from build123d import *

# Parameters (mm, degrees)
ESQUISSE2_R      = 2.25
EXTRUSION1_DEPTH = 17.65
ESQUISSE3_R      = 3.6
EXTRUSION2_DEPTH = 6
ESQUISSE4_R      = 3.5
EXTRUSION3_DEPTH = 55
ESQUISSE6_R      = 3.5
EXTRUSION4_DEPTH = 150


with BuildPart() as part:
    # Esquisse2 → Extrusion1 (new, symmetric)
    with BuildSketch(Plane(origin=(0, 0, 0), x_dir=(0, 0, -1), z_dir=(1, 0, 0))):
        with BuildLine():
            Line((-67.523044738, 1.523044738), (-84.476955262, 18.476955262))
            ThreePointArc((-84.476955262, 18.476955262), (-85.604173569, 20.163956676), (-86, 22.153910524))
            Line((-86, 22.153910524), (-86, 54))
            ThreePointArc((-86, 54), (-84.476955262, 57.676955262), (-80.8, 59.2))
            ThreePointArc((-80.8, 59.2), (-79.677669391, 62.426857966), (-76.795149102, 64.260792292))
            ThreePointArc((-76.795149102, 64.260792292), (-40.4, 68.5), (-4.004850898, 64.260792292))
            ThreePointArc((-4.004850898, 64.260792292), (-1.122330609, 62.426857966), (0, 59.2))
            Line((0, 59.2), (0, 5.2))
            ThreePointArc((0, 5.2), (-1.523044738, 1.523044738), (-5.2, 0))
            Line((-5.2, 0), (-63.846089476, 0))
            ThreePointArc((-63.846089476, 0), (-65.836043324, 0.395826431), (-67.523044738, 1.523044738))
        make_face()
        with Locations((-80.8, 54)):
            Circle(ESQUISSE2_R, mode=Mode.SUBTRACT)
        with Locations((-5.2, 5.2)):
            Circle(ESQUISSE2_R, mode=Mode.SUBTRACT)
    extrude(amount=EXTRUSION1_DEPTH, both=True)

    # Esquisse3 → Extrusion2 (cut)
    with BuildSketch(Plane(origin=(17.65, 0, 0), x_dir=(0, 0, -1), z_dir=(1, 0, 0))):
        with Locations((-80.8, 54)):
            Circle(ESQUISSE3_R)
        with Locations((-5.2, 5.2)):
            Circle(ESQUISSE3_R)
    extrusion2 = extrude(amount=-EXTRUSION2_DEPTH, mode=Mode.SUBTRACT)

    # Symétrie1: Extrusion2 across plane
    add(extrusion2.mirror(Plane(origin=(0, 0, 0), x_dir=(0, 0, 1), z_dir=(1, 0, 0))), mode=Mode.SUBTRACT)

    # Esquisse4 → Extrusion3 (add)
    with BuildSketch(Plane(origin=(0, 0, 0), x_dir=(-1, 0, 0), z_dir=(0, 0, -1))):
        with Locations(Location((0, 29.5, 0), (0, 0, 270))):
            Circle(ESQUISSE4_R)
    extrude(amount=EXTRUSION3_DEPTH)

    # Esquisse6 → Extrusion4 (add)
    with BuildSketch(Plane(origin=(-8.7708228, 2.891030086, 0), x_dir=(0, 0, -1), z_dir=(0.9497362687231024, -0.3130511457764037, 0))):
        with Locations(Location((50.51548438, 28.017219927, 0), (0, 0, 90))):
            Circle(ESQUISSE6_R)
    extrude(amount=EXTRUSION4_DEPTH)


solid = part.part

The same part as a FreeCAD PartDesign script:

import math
import FreeCAD as App
import Part
import Sketcher
from FreeCAD import Vector
Q = App.Units.Quantity

doc = App.newDocument("Part")
params = doc.addObject("Spreadsheet::Sheet", "Params")
for row, (alias, value) in enumerate([
    ("sketch1_diameter", "4.5 mm"),
    ("sketch1_radius", "5.2 mm"),
    ("sketch1_width", "54 mm"),
    ("pad1_length", "35.3 mm"),
    ("sketch2_diameter", "7.2 mm"),
    ("pocket1_length", "6 mm"),
    ("sketch3_diameter", "7 mm"),
    ("pad2_length", "55 mm"),
    ("sketch4_diameter", "7 mm"),
    ("pad3_length", "150 mm"),
], start=1):
    params.set(f"A{row}", alias)
    params.set(f"B{row}", "=" + value)
    params.setAlias(f"B{row}", alias)

body = doc.addObject("PartDesign::Body", "Body")

# Sketch on YZ plane
sketch1 = body.newObject("Sketcher::SketchObject", "Sketch")
sketch1.AttachmentSupport = (doc.getObject("YZ_Plane"), [""])
sketch1.MapMode = "FlatFace"
sketch1.addGeometry([
    Part.LineSegment(Vector(18.476955, 84.476955, 0), Vector(1.523045, 67.523045, 0)),  # 0
    Part.ArcOfCircle(Part.Circle(Vector(5.2, 63.846089, 0), Vector(0, 0, 1), 5.2), math.radians(135), math.radians(180)),  # 1
    Part.LineSegment(Vector(0, 63.846089, 0), Vector(0, 5.2, 0)),  # 2
    Part.ArcOfCircle(Part.Circle(Vector(5.2, 5.2, 0), Vector(0, 0, 1), 5.2), math.radians(-180), math.radians(-90)),  # 3
    Part.LineSegment(Vector(5.2, 0, 0), Vector(59.2, 0, 0)),  # 4
    Part.ArcOfCircle(Part.Circle(Vector(59.2, 5.2, 0), Vector(0, 0, 1), 5.2), math.radians(-90), math.radians(-13.287438)),  # 5
    Part.ArcOfCircle(Part.Circle(Vector(-89.852439, 40.4, 0), Vector(0, 0, 1), 158.352439), math.radians(-13.287438), math.radians(13.287438)),  # 6
    Part.ArcOfCircle(Part.Circle(Vector(59.2, 75.6, 0), Vector(0, 0, 1), 5.2), math.radians(13.287438), math.radians(90)),  # 7
    Part.ArcOfCircle(Part.Circle(Vector(54, 80.8, 0), Vector(0, 0, 1), 5.2), math.radians(0), math.radians(90)),  # 8
    Part.LineSegment(Vector(54, 86, 0), Vector(22.153911, 86, 0)),  # 9
    Part.ArcOfCircle(Part.Circle(Vector(22.153911, 80.8, 0), Vector(0, 0, 1), 5.2), math.radians(90), math.radians(135)),  # 10
    Part.Circle(Vector(5.2, 5.2, 0), Vector(0, 0, 1), 2.25),  # 11
    Part.Circle(Vector(54, 80.8, 0), Vector(0, 0, 1), 2.25),  # 12
], False)
sketch1.addConstraint([
    Sketcher.Constraint("Tangent", 0, 2, 1, 1),
    Sketcher.Constraint("Tangent", 1, 2, 2, 1),
    Sketcher.Constraint("Tangent", 2, 2, 3, 1),
    Sketcher.Constraint("Tangent", 3, 2, 4, 1),
    Sketcher.Constraint("Tangent", 4, 2, 5, 1),
    Sketcher.Constraint("Tangent", 5, 2, 6, 1),
    Sketcher.Constraint("Tangent", 6, 2, 7, 1),
    Sketcher.Constraint("Coincident", 7, 2, 8, 1),
    Sketcher.Constraint("Tangent", 8, 2, 9, 1),
    Sketcher.Constraint("Tangent", 9, 2, 10, 1),
    Sketcher.Constraint("Tangent", 10, 2, 0, 1),
    Sketcher.Constraint("Vertical", 2),
    Sketcher.Constraint("Horizontal", 4),
    Sketcher.Constraint("Horizontal", 9),
    Sketcher.Constraint("Coincident", 11, 3, 3, 3),
    Sketcher.Constraint("Coincident", 12, 3, 8, 3),
    Sketcher.Constraint("Equal", 1, 3),
    Sketcher.Constraint("Equal", 3, 5),
    Sketcher.Constraint("Equal", 5, 7),
    Sketcher.Constraint("Equal", 7, 8),
    Sketcher.Constraint("Equal", 8, 10),
    Sketcher.Constraint("Equal", 11, 12),
    Sketcher.Constraint("PointOnObject", 1, 2, -2),
    Sketcher.Constraint("PointOnObject", 3, 2, -1),
    Sketcher.Constraint("Horizontal", 12, 3, 7, 2),
    Sketcher.Constraint("Vertical", 5, 3, 7, 3),
    Sketcher.Constraint("Vertical", 4, 2, 7, 2),
    Sketcher.Constraint("Diameter", 11, Q("4.5 mm")),
    Sketcher.Constraint("Radius", 1, Q("5.2 mm")),
    Sketcher.Constraint("DistanceX", 4, 1, 4, 2, Q("54 mm")),
    Sketcher.Constraint("Angle", 0, Q("-135 deg")),
    Sketcher.Constraint("DistanceY", -1, 1, 8, 2, Q("86 mm")),
    Sketcher.Constraint("Radius", 6, Q("158.352439 mm")),
    Sketcher.Constraint("DistanceX", 9, 2, 9, 1, Q("31.846089 mm")),
])
sketch1.setExpression("Constraints[27]", "Params.sketch1_diameter")
sketch1.setExpression("Constraints[28]", "Params.sketch1_radius")
sketch1.setExpression("Constraints[29]", "Params.sketch1_width")
pad1 = body.newObject("PartDesign::Pad", "Pad")
pad1.Profile = sketch1
pad1.setExpression("Length", "Params.pad1_length")
pad1.Midplane = True

# Sketch on YZ plane
sketch2 = body.newObject("Sketcher::SketchObject", "Sketch001")
sketch2.AttachmentSupport = (doc.getObject("YZ_Plane"), [""])
sketch2.MapMode = "FlatFace"
sketch2.AttachmentOffset = App.Placement(Vector(0, 0, 17.65), App.Rotation())
sketch2.addGeometry([
    Part.Circle(Vector(54, 80.8, 0), Vector(0, 0, 1), 3.6),
    Part.Circle(Vector(5.2, 5.2, 0), Vector(0, 0, 1), 3.6),
], False)
sketch2.addConstraint([
    Sketcher.Constraint("Equal", 0, 1),
    Sketcher.Constraint("Diameter", 0, Q("7.2 mm")),
    Sketcher.Constraint("DistanceX", -1, 1, 0, 3, Q("54 mm")),
    Sketcher.Constraint("DistanceY", -1, 1, 0, 3, Q("80.8 mm")),
    Sketcher.Constraint("DistanceX", -1, 1, 1, 3, Q("5.2 mm")),
    Sketcher.Constraint("DistanceY", -1, 1, 1, 3, Q("5.2 mm")),
])
sketch2.setExpression("Constraints[1]", "Params.sketch2_diameter")
pocket1 = body.newObject("PartDesign::Pocket", "Pocket")
pocket1.Profile = sketch2
pocket1.setExpression("Length", "Params.pocket1_length")
doc.recompute()

mirrored = body.newObject("PartDesign::Mirrored", "Mirrored")
mirrored.Originals = [pocket1]
mirrored.MirrorPlane = (doc.getObject("YZ_Plane"), [""])
body.Tip = mirrored

# Sketch on XY plane
sketch3 = body.newObject("Sketcher::SketchObject", "Sketch002")
sketch3.AttachmentSupport = (doc.getObject("XY_Plane"), [""])
sketch3.MapMode = "FlatFace"
sketch3.addGeometry(Part.Circle(Vector(0, 29.5, 0), Vector(0, 0, 1), 3.5), False)
sketch3.addConstraint([
    Sketcher.Constraint("PointOnObject", 0, 3, -2),
    Sketcher.Constraint("Diameter", 0, Q("7 mm")),
    Sketcher.Constraint("DistanceY", -1, 1, 0, 3, Q("29.5 mm")),
])
sketch3.setExpression("Constraints[1]", "Params.sketch3_diameter")
pad2 = body.newObject("PartDesign::Pad", "Pad001")
pad2.Profile = sketch3
pad2.setExpression("Length", "Params.pad2_length")
pad2.Reversed = True

# Sketch on an angled plane
sketch4 = body.newObject("Sketcher::SketchObject", "Sketch003")
sketch4.Placement = App.Placement(Vector(-8.770823, 2.89103, 0), App.Rotation(Vector(0, 0, -1), Vector(0.313051146, 0.949736269, 0), Vector(0.949736269, -0.313051146, 0), "ZXY"))
sketch4.addGeometry(Part.Circle(Vector(50.515484, 28.01722, 0), Vector(0, 0, 1), 3.5), False)
sketch4.addConstraint([
    Sketcher.Constraint("Diameter", 0, Q("7 mm")),
    Sketcher.Constraint("DistanceY", -1, 1, 0, 3, Q("28.01722 mm")),
    Sketcher.Constraint("DistanceX", -1, 1, 0, 3, Q("50.515484 mm")),
])
sketch4.setExpression("Constraints[0]", "Params.sketch4_diameter")
pad3 = body.newObject("PartDesign::Pad", "Pad002")
pad3.Profile = sketch4
pad3.setExpression("Length", "Params.pad3_length")

doc.recompute()
